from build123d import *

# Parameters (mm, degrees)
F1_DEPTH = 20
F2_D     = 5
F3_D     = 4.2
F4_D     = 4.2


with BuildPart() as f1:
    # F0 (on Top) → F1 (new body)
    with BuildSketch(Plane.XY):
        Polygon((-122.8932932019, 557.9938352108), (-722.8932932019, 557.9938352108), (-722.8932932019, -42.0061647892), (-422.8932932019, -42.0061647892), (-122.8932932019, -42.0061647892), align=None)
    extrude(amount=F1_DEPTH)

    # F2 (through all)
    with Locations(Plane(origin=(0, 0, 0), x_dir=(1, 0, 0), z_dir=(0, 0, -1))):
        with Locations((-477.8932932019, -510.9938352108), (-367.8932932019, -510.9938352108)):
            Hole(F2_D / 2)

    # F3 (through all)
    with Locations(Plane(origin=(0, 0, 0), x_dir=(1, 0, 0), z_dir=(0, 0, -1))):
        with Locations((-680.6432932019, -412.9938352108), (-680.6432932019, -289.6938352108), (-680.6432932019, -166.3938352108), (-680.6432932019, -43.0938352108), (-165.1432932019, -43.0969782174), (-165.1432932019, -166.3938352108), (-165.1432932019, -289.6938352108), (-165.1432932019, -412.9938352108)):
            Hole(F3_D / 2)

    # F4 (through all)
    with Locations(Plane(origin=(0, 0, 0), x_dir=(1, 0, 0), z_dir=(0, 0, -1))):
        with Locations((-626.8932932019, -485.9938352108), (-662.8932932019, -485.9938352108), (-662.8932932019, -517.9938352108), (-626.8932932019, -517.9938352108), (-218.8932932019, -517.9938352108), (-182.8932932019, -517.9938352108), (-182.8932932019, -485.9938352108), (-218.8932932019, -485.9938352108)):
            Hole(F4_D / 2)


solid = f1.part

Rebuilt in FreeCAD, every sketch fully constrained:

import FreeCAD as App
import Part
import Sketcher


def add_polygon(sketch, points):
    """Adds a closed chain of lines whose ends are joined by coincident constraints."""
    first, n = sketch.GeometryCount, len(points)
    for a, b in zip(points, points[1:] + points[:1]):
        sketch.addGeometry(Part.LineSegment(App.Vector(*a, 0), App.Vector(*b, 0)), False)
    for i in range(n):
        sketch.addConstraint(Sketcher.Constraint("Coincident", first + i, 2, first + (i + 1) % n, 1))

doc = App.newDocument("Part")
body = doc.addObject("PartDesign::Body", "Body")

sketch1 = body.newObject("Sketcher::SketchObject", "Sketch")
sketch1.AttachmentSupport = (doc.getObject("XY_Plane"), [""])
sketch1.MapMode = "FlatFace"
add_polygon(sketch1, [(-123, 558), (-723, 558), (-723, -42), (-123, -42)])
sketch1.addConstraint([
    Sketcher.Constraint("Horizontal", 0),
    Sketcher.Constraint("Vertical", 1),
    Sketcher.Constraint("Horizontal", 2),
    Sketcher.Constraint("Vertical", 3),
    Sketcher.Constraint("Equal", 2, 1),
    Sketcher.Constraint("DistanceX", 0, 2, 0, 1, 600.0),
    Sketcher.Constraint("DistanceX", 0, 2, -1, 1, 722.893293),
    Sketcher.Constraint("DistanceY", -1, 1, 0, 2, 557.993835),
])
pad1 = body.newObject("PartDesign::Pad", "Pad")
pad1.Profile = sketch1
pad1.Length = 20

sketch2 = body.newObject("Sketcher::SketchObject", "Sketch001")
sketch2.AttachmentSupport = (doc.getObject("XY_Plane"), [""])
sketch2.MapMode = "FlatFace"
sketch2.addGeometry([
    Part.Circle(App.Vector(-477.9, 511, 0), App.Vector(0, 0, 1), 2.5),
    Part.Circle(App.Vector(-367.9, 511, 0), App.Vector(0, 0, 1), 2.5),
], False)
sketch2.addConstraint([
    Sketcher.Constraint("Equal", 0, 1),
    Sketcher.Constraint("Horizontal", 0, 3, 1, 3),
    Sketcher.Constraint("Diameter", 0, 5.0),
    Sketcher.Constraint("DistanceX", 0, 3, 1, 3, 110.0),
    Sketcher.Constraint("DistanceX", 0, 3, -1, 1, 477.893293),
    Sketcher.Constraint("DistanceY", -1, 1, 0, 3, 510.993835),
])
doc.recompute()
hole = body.newObject("PartDesign::Hole", "Hole")
hole.Profile = sketch2
hole.ThreadType = "None"
hole.Diameter = 5
hole.DepthType = "ThroughAll"
hole.Reversed = True

sketch3 = body.newObject("Sketcher::SketchObject", "Sketch002")
sketch3.AttachmentSupport = (doc.getObject("XY_Plane"), [""])
sketch3.MapMode = "FlatFace"
sketch3.addGeometry([
    Part.Circle(App.Vector(-680.6, 413, 0), App.Vector(0, 0, 1), 2.1),
    Part.Circle(App.Vector(-680.6, 289.7, 0), App.Vector(0, 0, 1), 2.1),
    Part.Circle(App.Vector(-680.6, 166.4, 0), App.Vector(0, 0, 1), 2.1),
    Part.Circle(App.Vector(-680.6, 43.1, 0), App.Vector(0, 0, 1), 2.1),
    Part.Circle(App.Vector(-165.1, 43.1, 0), App.Vector(0, 0, 1), 2.1),
    Part.Circle(App.Vector(-165.1, 166.4, 0), App.Vector(0, 0, 1), 2.1),
    Part.Circle(App.Vector(-165.1, 289.7, 0), App.Vector(0, 0, 1), 2.1),
    Part.Circle(App.Vector(-165.1, 413, 0), App.Vector(0, 0, 1), 2.1),
], False)
sketch3.addConstraint([
    Sketcher.Constraint("Equal", 0, 1),
    Sketcher.Constraint("Equal", 1, 2),
    Sketcher.Constraint("Equal", 2, 3),
    Sketcher.Constraint("Equal", 3, 4),
    Sketcher.Constraint("Equal", 4, 5),
    Sketcher.Constraint("Equal", 5, 6),
    Sketcher.Constraint("Equal", 6, 7),
    Sketcher.Constraint("Horizontal", 2, 3, 5, 3),
    Sketcher.Constraint("Horizontal", 1, 3, 6, 3),
    Sketcher.Constraint("Horizontal", 0, 3, 7, 3),
    Sketcher.Constraint("Vertical", 0, 3, 1, 3),
    Sketcher.Constraint("Vertical", 1, 3, 2, 3),
    Sketcher.Constraint("Vertical", 2, 3, 3, 3),
    Sketcher.Constraint("Vertical", 4, 3, 5, 3),
    Sketcher.Constraint("Vertical", 5, 3, 6, 3),
    Sketcher.Constraint("Vertical", 6, 3, 7, 3),
    Sketcher.Constraint("Diameter", 0, 4.2),
    Sketcher.Constraint("DistanceY", 1, 3, 0, 3, 123.3),
    Sketcher.Constraint("DistanceY", 2, 3, 1, 3, 123.3),
    Sketcher.Constraint("DistanceY", 3, 3, 2, 3, 123.3),
    Sketcher.Constraint("DistanceX", 3, 3, 4, 3, 515.5),
    Sketcher.Constraint("DistanceY", -1, 1, 4, 3, 43.096978),
    Sketcher.Constraint("DistanceX", 0, 3, -1, 1, 680.643293),
    Sketcher.Constraint("DistanceY", -1, 1, 0, 3, 412.993835),
])
doc.recompute()
hole2 = body.newObject("PartDesign::Hole", "Hole001")
hole2.Profile = sketch3
hole2.ThreadType = "None"
hole2.Diameter = 4.2
hole2.DepthType = "ThroughAll"
hole2.Reversed = True

sketch4 = body.newObject("Sketcher::SketchObject", "Sketch003")
sketch4.AttachmentSupport = (doc.getObject("XY_Plane"), [""])
sketch4.MapMode = "FlatFace"
sketch4.addGeometry([
    Part.Circle(App.Vector(-626.9, 486, 0), App.Vector(0, 0, 1), 2.1),
    Part.Circle(App.Vector(-662.9, 486, 0), App.Vector(0, 0, 1), 2.1),
    Part.Circle(App.Vector(-662.9, 518, 0), App.Vector(0, 0, 1), 2.1),
    Part.Circle(App.Vector(-626.9, 518, 0), App.Vector(0, 0, 1), 2.1),
    Part.Circle(App.Vector(-218.9, 518, 0), App.Vector(0, 0, 1), 2.1),
    Part.Circle(App.Vector(-182.9, 518, 0), App.Vector(0, 0, 1), 2.1),
    Part.Circle(App.Vector(-182.9, 486, 0), App.Vector(0, 0, 1), 2.1),
    Part.Circle(App.Vector(-218.9, 486, 0), App.Vector(0, 0, 1), 2.1),
], False)
sketch4.addConstraint([
    Sketcher.Constraint("Equal", 0, 1),
    Sketcher.Constraint("Equal", 1, 2),
    Sketcher.Constraint("Equal", 2, 3),
    Sketcher.Constraint("Equal", 3, 4),
    Sketcher.Constraint("Equal", 4, 5),
    Sketcher.Constraint("Equal", 5, 6),
    Sketcher.Constraint("Equal", 6, 7),
    Sketcher.Constraint("Horizontal", 0, 3, 1, 3),
    Sketcher.Constraint("Horizontal", 2, 3, 3, 3),
    Sketcher.Constraint("Horizontal", 3, 3, 4, 3),
    Sketcher.Constraint("Horizontal", 4, 3, 5, 3),
    Sketcher.Constraint("Horizontal", 1, 3, 6, 3),
    Sketcher.Constraint("Horizontal", 6, 3, 7, 3),
    Sketcher.Constraint("Vertical", 1, 3, 2, 3),
    Sketcher.Constraint("Vertical", 0, 3, 3, 3),
    Sketcher.Constraint("Vertical", 5, 3, 6, 3),
    Sketcher.Constraint("Vertical", 4, 3, 7, 3),
    Sketcher.Constraint("Diameter", 0, 4.2),
    Sketcher.Constraint("DistanceX", 1, 3, 0, 3, 36.0),
    Sketcher.Constraint("DistanceY", 1, 3, 2, 3, 32.0),
    Sketcher.Constraint("DistanceX", 3, 3, 4, 3, 408.0),
    Sketcher.Constraint("DistanceX", 4, 3, 5, 3, 36.0),
    Sketcher.Constraint("DistanceX", 0, 3, -1, 1, 626.893293),
    Sketcher.Constraint("DistanceY", -1, 1, 0, 3, 485.993835),
])
doc.recompute()
hole3 = body.newObject("PartDesign::Hole", "Hole002")
hole3.Profile = sketch4
hole3.ThreadType = "None"
hole3.Diameter = 4.2
hole3.DepthType = "ThroughAll"
hole3.Reversed = True

doc.recompute()
